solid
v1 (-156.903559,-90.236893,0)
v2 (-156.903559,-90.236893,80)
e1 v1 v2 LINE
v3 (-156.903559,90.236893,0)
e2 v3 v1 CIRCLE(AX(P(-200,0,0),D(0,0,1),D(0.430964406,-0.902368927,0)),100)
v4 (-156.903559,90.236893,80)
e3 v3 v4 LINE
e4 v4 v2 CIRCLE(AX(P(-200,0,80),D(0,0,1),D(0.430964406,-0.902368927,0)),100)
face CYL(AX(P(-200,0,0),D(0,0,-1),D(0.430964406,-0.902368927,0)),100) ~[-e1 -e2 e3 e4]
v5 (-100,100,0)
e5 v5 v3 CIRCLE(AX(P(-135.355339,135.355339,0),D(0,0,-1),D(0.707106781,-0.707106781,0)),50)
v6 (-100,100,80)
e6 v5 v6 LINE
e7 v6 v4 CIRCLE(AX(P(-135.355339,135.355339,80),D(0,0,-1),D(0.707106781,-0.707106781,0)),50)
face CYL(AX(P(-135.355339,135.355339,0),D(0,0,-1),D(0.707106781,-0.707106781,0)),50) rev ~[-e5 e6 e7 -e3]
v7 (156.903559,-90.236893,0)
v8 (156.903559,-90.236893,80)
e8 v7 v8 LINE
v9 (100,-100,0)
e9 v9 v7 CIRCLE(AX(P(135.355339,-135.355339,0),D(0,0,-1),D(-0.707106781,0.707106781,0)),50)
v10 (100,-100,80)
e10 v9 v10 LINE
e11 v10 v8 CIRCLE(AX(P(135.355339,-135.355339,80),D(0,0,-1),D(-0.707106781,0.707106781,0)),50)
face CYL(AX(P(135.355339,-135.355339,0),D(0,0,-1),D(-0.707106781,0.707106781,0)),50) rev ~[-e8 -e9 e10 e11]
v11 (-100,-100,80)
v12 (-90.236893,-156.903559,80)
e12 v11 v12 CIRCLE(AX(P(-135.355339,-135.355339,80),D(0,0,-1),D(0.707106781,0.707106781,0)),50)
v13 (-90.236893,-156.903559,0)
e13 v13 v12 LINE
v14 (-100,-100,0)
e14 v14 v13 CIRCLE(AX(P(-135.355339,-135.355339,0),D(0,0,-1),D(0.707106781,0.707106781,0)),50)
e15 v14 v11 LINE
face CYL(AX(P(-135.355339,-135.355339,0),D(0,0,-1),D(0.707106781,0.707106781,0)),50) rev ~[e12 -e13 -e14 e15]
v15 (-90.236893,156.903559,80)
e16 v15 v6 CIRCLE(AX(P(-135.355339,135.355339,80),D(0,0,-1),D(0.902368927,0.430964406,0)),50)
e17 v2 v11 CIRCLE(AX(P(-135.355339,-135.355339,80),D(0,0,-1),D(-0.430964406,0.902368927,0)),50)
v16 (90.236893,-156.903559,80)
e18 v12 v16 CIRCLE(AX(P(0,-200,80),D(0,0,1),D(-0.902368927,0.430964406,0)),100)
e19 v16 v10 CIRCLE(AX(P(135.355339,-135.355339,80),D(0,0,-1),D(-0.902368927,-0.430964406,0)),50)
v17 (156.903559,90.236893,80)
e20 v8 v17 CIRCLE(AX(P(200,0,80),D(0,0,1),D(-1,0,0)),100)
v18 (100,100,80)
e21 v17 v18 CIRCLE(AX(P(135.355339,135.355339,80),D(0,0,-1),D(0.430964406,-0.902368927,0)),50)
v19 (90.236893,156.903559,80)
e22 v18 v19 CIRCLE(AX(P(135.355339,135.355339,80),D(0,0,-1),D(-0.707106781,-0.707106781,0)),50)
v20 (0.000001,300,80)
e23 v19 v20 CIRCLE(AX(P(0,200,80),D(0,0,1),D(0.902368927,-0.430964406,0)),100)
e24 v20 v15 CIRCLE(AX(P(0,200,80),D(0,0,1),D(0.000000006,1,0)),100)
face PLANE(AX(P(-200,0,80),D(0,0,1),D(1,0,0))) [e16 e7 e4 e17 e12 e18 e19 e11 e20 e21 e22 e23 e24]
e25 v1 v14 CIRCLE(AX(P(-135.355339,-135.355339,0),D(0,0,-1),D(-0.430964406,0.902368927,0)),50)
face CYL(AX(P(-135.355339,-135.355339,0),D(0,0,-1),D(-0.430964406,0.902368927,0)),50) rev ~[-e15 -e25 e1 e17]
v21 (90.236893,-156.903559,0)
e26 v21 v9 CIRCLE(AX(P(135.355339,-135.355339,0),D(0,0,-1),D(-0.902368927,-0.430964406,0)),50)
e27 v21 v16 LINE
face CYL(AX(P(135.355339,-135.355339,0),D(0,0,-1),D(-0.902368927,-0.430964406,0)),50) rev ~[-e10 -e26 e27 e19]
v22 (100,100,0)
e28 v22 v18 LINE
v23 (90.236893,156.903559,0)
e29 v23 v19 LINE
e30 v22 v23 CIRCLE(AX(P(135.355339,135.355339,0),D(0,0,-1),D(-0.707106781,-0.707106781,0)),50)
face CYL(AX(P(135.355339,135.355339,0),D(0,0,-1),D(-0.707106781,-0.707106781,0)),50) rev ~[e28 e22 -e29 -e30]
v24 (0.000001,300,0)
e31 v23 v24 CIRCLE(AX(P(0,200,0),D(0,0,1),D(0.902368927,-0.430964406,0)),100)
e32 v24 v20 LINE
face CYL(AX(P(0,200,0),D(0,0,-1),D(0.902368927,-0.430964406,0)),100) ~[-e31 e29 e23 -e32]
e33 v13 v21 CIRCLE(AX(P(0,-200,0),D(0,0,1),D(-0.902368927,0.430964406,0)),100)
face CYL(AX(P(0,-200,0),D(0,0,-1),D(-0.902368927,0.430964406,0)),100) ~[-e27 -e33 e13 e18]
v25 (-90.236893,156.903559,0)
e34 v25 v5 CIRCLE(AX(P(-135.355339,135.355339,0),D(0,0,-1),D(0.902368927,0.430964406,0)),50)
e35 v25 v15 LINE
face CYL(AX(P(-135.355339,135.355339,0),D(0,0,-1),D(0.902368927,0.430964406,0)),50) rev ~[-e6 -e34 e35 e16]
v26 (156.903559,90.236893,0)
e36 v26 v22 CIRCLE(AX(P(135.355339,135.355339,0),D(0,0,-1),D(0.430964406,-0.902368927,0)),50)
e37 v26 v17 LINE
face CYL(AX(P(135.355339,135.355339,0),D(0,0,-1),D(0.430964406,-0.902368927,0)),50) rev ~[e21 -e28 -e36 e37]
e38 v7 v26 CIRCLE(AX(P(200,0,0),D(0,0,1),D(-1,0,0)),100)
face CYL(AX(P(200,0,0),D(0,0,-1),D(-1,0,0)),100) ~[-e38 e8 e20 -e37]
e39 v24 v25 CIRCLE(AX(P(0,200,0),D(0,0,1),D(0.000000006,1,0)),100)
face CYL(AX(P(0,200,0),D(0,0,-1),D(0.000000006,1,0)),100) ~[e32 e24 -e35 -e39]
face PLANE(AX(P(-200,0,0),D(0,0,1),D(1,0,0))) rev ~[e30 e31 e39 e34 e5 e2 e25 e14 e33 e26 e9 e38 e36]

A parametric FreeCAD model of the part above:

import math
import FreeCAD as App
import Part
import Sketcher
from FreeCAD import Vector
Q = App.Units.Quantity

doc = App.newDocument("Part")
body = doc.addObject("PartDesign::Body", "Body")

# Sketch on XY plane
sketch1 = doc.addObject("Sketcher::SketchObject", "Sketch")
body.addObject(sketch1)
sketch1.AttachmentSupport = (doc.XY_Plane, [""])
sketch1.MapMode = "FlatFace"
sketch1.addGeometry([
    Part.ArcOfCircle(Part.Circle(Vector(-200, 0, 0), Vector(0, 0, 1), 100), math.radians(64.471221), math.radians(295.528779)),  # 0
    Part.ArcOfCircle(Part.Circle(Vector(-135.355339, -135.355339, 0), Vector(0, 0, 1), 50), math.radians(45), math.radians(115.528779)),  # 1
    Part.ArcOfCircle(Part.Circle(Vector(-135.355339, -135.355339, 0), Vector(0, 0, 1), 50), math.radians(-25.528779), math.radians(45)),  # 2
    Part.ArcOfCircle(Part.Circle(Vector(0, -200, 0), Vector(0, 0, 1), 100), math.radians(154.471221), math.radians(385.528779)),  # 3
    Part.ArcOfCircle(Part.Circle(Vector(135.355339, -135.355339, 0), Vector(0, 0, 1), 50), math.radians(135), math.radians(205.528779)),  # 4
    Part.ArcOfCircle(Part.Circle(Vector(135.355339, -135.355339, 0), Vector(0, 0, 1), 50), math.radians(64.471221), math.radians(135)),  # 5
    Part.ArcOfCircle(Part.Circle(Vector(200, 0, 0), Vector(0, 0, 1), 100), math.radians(-115.528779), math.radians(115.528779)),  # 6
    Part.ArcOfCircle(Part.Circle(Vector(135.355339, 135.355339, 0), Vector(0, 0, 1), 50), math.radians(-135), math.radians(-64.471221)),  # 7
    Part.ArcOfCircle(Part.Circle(Vector(135.355339, 135.355339, 0), Vector(0, 0, 1), 50), math.radians(154.471221), math.radians(225)),  # 8
    Part.ArcOfCircle(Part.Circle(Vector(0, 200, 0), Vector(0, 0, 1), 100), math.radians(-25.528779), math.radians(90)),  # 9
    Part.ArcOfCircle(Part.Circle(Vector(0, 200, 0), Vector(0, 0, 1), 100), math.radians(90), math.radians(205.528779)),  # 10
    Part.ArcOfCircle(Part.Circle(Vector(-135.355339, 135.355339, 0), Vector(0, 0, 1), 50), math.radians(-45), math.radians(25.528779)),  # 11
    Part.ArcOfCircle(Part.Circle(Vector(-135.355339, 135.355339, 0), Vector(0, 0, 1), 50), math.radians(-115.528779), math.radians(-45)),  # 12
], False)
sketch1.addConstraint([
    Sketcher.Constraint("Tangent", 0, 2, 1, 2),
    Sketcher.Constraint("Tangent", 1, 1, 2, 2),
    Sketcher.Constraint("Tangent", 2, 1, 3, 1),
    Sketcher.Constraint("Tangent", 3, 2, 4, 2),
    Sketcher.Constraint("Tangent", 4, 1, 5, 2),
    Sketcher.Constraint("Tangent", 5, 1, 6, 1),
    Sketcher.Constraint("Tangent", 6, 2, 7, 2),
    Sketcher.Constraint("Tangent", 7, 1, 8, 2),
    Sketcher.Constraint("Tangent", 8, 1, 9, 1),
    Sketcher.Constraint("Tangent", 9, 2, 10, 1),
    Sketcher.Constraint("Tangent", 10, 2, 11, 2),
    Sketcher.Constraint("Tangent", 11, 1, 12, 2),
    Sketcher.Constraint("Tangent", 12, 1, 0, 1),
    Sketcher.Constraint("Equal", 1, 2),
    Sketcher.Constraint("Equal", 0, 3),
    Sketcher.Constraint("Equal", 2, 4),
    Sketcher.Constraint("Equal", 4, 5),
    Sketcher.Constraint("Equal", 3, 6),
    Sketcher.Constraint("Equal", 5, 7),
    Sketcher.Constraint("Equal", 7, 8),
    Sketcher.Constraint("Equal", 6, 9),
    Sketcher.Constraint("Equal", 9, 10),
    Sketcher.Constraint("Equal", 8, 11),
    Sketcher.Constraint("Equal", 11, 12),
    Sketcher.Constraint("Symmetric", 0, 3, 6, 3, -1, 1),
    Sketcher.Constraint("Symmetric", 3, 3, 9, 3, -1, 1),
    Sketcher.Constraint("Symmetric", 1, 3, 4, 3, -2),
    Sketcher.Constraint("PointOnObject", 9, 2, -2),
    Sketcher.Constraint("Horizontal", 1, 1, 4, 1),
    Sketcher.Constraint("Horizontal", 7, 1, 11, 1),
    Sketcher.Constraint("Vertical", 4, 1, 7, 1),
    Sketcher.Constraint("Radius", 0, Q("100 mm")),
    Sketcher.Constraint("Radius", 1, Q("50 mm")),
    Sketcher.Constraint("DistanceX", 0, 3, -1, 1, Q("200 mm")),
    Sketcher.Constraint("DistanceY", 3, 3, -1, 1, Q("200 mm")),
    Sketcher.Constraint("DistanceX", 1, 1, -1, 1, Q("100 mm")),
])
pad1 = doc.addObject("PartDesign::Pad", "Pad")
body.addObject(pad1)
pad1.Profile = sketch1
pad1.Length = 80

doc.recompute()
